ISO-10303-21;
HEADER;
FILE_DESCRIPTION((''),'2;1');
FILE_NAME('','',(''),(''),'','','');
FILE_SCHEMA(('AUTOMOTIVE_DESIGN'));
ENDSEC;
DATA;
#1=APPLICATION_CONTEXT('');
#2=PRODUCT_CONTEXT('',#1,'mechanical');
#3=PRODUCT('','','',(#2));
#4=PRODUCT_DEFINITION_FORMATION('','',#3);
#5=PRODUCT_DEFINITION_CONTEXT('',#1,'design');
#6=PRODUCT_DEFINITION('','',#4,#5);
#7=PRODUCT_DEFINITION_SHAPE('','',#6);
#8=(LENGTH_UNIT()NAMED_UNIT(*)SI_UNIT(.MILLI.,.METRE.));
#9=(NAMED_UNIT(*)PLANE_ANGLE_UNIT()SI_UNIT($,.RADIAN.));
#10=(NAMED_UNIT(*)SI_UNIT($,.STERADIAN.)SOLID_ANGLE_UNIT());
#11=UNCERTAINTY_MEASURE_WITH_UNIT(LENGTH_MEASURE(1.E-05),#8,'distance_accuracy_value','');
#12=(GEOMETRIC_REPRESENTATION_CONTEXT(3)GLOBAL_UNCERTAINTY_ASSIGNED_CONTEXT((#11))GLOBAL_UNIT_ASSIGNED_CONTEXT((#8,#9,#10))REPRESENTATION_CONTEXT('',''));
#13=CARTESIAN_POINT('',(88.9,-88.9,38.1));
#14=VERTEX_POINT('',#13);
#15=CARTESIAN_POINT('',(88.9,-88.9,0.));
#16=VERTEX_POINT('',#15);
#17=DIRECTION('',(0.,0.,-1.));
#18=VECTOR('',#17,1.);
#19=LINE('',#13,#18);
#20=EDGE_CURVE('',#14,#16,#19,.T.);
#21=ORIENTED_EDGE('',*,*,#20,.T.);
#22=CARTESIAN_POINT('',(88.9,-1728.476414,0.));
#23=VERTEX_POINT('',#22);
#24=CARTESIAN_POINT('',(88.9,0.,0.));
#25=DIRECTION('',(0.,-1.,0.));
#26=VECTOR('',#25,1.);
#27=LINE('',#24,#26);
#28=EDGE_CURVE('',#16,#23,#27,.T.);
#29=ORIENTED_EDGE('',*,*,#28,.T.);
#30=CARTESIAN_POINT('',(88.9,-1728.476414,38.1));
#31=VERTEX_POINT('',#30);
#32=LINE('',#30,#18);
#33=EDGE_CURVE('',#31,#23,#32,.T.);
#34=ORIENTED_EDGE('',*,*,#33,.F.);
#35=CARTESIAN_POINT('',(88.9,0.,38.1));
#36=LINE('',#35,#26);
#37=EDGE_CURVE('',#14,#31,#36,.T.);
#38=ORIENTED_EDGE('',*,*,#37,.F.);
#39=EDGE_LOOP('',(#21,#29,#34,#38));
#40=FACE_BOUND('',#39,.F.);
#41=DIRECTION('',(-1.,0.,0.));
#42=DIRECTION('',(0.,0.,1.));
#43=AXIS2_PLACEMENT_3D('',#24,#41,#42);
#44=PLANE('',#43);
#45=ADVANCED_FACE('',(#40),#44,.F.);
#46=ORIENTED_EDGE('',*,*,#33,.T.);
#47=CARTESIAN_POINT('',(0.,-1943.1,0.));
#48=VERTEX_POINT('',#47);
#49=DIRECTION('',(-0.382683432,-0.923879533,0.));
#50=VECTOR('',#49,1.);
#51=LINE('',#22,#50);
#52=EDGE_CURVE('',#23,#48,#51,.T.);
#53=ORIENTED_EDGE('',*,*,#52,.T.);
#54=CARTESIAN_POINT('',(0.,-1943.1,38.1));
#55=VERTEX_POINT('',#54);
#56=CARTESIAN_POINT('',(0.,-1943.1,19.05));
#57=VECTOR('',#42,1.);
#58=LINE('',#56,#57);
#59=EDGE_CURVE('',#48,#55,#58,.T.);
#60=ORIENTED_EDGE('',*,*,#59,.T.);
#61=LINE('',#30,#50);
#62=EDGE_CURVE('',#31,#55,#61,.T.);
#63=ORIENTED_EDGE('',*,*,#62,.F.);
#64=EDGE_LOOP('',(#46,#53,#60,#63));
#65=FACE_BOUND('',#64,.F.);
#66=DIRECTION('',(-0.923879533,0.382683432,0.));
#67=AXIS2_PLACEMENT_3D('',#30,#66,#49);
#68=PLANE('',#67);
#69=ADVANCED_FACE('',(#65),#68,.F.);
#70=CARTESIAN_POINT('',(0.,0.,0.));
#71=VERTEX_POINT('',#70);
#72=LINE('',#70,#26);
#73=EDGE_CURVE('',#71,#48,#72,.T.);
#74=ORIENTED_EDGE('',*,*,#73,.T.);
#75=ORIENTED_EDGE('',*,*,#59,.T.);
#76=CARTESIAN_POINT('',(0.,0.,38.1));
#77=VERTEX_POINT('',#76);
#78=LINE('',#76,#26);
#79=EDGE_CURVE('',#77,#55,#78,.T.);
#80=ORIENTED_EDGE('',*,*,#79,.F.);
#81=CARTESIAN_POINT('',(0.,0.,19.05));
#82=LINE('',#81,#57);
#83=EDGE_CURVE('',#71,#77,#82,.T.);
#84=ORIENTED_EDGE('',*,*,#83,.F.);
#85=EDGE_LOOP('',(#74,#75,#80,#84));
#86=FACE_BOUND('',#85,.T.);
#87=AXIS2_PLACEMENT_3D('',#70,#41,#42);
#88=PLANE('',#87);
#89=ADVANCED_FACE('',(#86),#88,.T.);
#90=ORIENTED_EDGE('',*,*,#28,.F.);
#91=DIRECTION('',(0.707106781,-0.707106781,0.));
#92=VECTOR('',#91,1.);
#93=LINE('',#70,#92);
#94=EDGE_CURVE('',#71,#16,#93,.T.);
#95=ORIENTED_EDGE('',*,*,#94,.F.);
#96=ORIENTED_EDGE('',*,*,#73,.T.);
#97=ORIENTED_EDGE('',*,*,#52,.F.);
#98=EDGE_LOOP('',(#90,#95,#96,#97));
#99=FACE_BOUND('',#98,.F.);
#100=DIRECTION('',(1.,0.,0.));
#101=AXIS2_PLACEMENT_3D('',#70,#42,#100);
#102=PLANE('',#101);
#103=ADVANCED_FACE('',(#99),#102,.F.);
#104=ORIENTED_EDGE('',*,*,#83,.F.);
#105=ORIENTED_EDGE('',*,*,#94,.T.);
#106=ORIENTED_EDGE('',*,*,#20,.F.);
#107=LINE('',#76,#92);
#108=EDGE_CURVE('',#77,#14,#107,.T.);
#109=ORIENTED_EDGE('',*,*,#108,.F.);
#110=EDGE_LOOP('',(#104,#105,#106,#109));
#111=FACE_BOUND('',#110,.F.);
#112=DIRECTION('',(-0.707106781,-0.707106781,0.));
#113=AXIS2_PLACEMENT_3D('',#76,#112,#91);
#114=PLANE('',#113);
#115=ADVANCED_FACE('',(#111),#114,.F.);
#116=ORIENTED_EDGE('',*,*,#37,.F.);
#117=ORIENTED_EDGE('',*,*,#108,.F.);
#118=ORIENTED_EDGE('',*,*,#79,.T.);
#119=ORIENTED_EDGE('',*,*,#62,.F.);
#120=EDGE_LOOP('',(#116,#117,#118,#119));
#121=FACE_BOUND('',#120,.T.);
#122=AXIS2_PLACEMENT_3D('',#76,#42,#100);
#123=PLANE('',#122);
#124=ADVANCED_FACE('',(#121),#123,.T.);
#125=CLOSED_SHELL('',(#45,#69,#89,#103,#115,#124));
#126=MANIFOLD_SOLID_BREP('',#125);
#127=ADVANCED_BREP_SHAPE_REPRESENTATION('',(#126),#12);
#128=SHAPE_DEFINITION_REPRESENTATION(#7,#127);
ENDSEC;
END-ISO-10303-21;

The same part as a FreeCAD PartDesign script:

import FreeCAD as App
import Part
import Sketcher
Q = App.Units.Quantity


def add_polygon(sketch, points):
    """Adds a closed chain of lines whose ends are joined by coincident constraints."""
    first, n = sketch.GeometryCount, len(points)
    for a, b in zip(points, points[1:] + points[:1]):
        sketch.addGeometry(Part.LineSegment(App.Vector(*a, 0), App.Vector(*b, 0)), False)
    for i in range(n):
        sketch.addConstraint(Sketcher.Constraint("Coincident", first + i, 2, first + (i + 1) % n, 1))

doc = App.newDocument("Part")
body = doc.addObject("PartDesign::Body", "Body")

# Sketch on XZ plane
sketch1 = doc.addObject("Sketcher::SketchObject", "Sketch")
body.addObject(sketch1)
sketch1.AttachmentSupport = (doc.XZ_Plane, [""])
sketch1.MapMode = "FlatFace"
add_polygon(sketch1, [(0, 38), (0, 0), (89, 0), (89, 38)])  # lines 0-3
sketch1.addConstraint(Sketcher.Constraint("Vertical", 0))
sketch1.addConstraint(Sketcher.Constraint("Horizontal", 1))
sketch1.addConstraint(Sketcher.Constraint("Vertical", 2))
sketch1.addConstraint(Sketcher.Constraint("Horizontal", 3))
sketch1.addConstraint(Sketcher.Constraint("Coincident", 0, 2, -1, 1))
sketch1.addConstraint(Sketcher.Constraint("DistanceX", 1, 1, 1, 2, Q("3.5 in")))
sketch1.addConstraint(Sketcher.Constraint("DistanceY", 0, 2, 0, 1, Q("1.5 in")))
pad1 = doc.addObject("PartDesign::Pad", "Pad")
body.addObject(pad1)
pad1.Profile = sketch1
pad1.Length = Q("76.5 in")

# Sketch on XY plane
sketch2 = doc.addObject("Sketcher::SketchObject", "Sketch001")
body.addObject(sketch2)
sketch2.AttachmentSupport = (doc.XY_Plane, [""])
sketch2.MapMode = "FlatFace"
sketch2.AttachmentOffset = App.Placement(App.Vector(0, 0, 1.5 * 25.4), App.Rotation())
add_polygon(sketch2, [(89, -1728), (0, -1943), (89, -1943)])  # lines 0-2
sketch2.addConstraint(Sketcher.Constraint("Horizontal", 1))
sketch2.addConstraint(Sketcher.Constraint("Vertical", 2))
sketch2.addConstraint(Sketcher.Constraint("PointOnObject", 0, 2, -2))
sketch2.addConstraint(Sketcher.Constraint("DistanceX", 1, 1, 1, 2, Q("3.5 in")))
sketch2.addConstraint(Sketcher.Constraint("DistanceY", 0, 2, -1, 1, Q("76.5 in")))
sketch2.addConstraint(Sketcher.Constraint("Angle", 0, Q("-112.5 deg")))
pocket1 = doc.addObject("PartDesign::Pocket", "Pocket")
body.addObject(pocket1)
pocket1.Profile = sketch2
pocket1.Type = "ThroughAll"

# Sketch on XY plane
sketch3 = doc.addObject("Sketcher::SketchObject", "Sketch002")
body.addObject(sketch3)
sketch3.AttachmentSupport = (doc.XY_Plane, [""])
sketch3.MapMode = "FlatFace"
sketch3.AttachmentOffset = App.Placement(App.Vector(0, 0, 1.5 * 25.4), App.Rotation())
add_polygon(sketch3, [(89, 0), (0, 0), (89, -89)])  # lines 0-2
sketch3.addConstraint(Sketcher.Constraint("Horizontal", 0))
sketch3.addConstraint(Sketcher.Constraint("Vertical", 2))
sketch3.addConstraint(Sketcher.Constraint("Coincident", 0, 2, -1, 1))
sketch3.addConstraint(Sketcher.Constraint("Equal", 0, 2))
sketch3.addConstraint(Sketcher.Constraint("DistanceX", 0, 2, 0, 1, Q("3.5 in")))
pocket2 = doc.addObject("PartDesign::Pocket", "Pocket001")
body.addObject(pocket2)
pocket2.Profile = sketch3
pocket2.Type = "ThroughAll"

doc.recompute()
